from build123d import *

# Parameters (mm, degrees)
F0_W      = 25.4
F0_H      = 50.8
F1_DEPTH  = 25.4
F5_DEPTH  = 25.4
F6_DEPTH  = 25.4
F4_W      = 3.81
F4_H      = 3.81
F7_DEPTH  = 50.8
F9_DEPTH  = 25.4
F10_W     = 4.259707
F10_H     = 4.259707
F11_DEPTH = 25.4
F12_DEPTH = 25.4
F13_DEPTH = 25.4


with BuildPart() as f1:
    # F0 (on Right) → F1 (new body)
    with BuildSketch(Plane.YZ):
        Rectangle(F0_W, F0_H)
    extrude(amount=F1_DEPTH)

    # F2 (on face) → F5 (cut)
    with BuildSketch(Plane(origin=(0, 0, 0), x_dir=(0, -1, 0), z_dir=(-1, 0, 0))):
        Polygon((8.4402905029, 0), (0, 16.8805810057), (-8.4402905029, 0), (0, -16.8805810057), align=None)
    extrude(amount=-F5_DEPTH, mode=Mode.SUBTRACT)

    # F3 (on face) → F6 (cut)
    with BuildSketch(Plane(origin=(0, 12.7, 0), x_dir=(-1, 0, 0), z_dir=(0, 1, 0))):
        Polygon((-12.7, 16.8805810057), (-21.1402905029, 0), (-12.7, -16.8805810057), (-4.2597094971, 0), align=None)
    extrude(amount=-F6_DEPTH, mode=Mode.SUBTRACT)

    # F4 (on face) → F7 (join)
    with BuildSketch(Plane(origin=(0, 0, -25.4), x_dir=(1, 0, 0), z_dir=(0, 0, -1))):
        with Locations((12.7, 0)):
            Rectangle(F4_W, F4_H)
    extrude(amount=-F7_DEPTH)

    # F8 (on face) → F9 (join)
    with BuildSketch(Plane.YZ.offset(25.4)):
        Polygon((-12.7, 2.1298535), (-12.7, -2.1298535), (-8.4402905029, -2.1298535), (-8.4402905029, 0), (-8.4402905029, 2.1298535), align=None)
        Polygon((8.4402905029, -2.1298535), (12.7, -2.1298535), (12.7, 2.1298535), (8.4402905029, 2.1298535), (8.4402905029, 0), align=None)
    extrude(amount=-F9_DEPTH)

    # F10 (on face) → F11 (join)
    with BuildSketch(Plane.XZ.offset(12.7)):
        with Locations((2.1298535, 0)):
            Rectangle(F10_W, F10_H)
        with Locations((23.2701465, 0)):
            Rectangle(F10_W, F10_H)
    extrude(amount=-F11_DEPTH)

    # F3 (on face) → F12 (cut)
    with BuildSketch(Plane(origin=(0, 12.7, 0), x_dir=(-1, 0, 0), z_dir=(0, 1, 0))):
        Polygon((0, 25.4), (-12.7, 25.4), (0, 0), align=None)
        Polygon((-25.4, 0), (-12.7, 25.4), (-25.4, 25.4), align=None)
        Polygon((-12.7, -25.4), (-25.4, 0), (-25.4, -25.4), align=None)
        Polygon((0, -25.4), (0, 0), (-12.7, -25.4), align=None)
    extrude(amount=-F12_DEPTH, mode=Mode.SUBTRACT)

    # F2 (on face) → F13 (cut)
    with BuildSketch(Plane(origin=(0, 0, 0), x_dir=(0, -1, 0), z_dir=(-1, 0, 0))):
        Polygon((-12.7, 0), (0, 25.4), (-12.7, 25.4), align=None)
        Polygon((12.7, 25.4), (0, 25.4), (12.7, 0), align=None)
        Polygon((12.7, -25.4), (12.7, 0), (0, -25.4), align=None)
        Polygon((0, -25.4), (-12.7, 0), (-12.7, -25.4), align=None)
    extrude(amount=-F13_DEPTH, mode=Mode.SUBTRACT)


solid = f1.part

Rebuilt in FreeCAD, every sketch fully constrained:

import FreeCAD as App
import Part
import Sketcher

V = App.Vector
Q = App.Units.Quantity

doc = App.newDocument("Part")
params = doc.addObject("Spreadsheet::Sheet", "Params")
for row, (alias, value) in enumerate([
    ("sketch1_width", "1 in"),
    ("sketch1_height", "2 in"),
    ("pad1_length", "1 in"),
    ("pocket1_length", "1 in"),
    ("pocket2_length", "1 in"),
    ("sketch4_width", "0.15 in"),
    ("pad2_length", "2 in"),
    ("pad3_length", "1 in"),
    ("pad4_length", "1 in"),
    ("sketch7_height", "1 in"),
    ("sketch7_width", "0.5 in"),
    ("pocket3_length", "1 in"),
    ("sketch8_height", "1 in"),
    ("sketch8_width", "0.5 in"),
    ("pocket4_length", "1 in"),
], start=1):
    params.set(f"A{row}", alias)
    params.set(f"B{row}", "=" + value)
    params.setAlias(f"B{row}", alias)

body = doc.addObject("PartDesign::Body", "Body")

# Sketch on YZ plane
sketch1 = body.newObject("Sketcher::SketchObject", "Sketch")
sketch1.AttachmentSupport = (doc.getObject("YZ_Plane"), [""])
sketch1.MapMode = "FlatFace"
sketch1.addGeometry(Part.LineSegment(V(-13, 25, 0), V(-13, -25, 0)), False)
sketch1.addGeometry(Part.LineSegment(V(-13, -25, 0), V(13, -25, 0)), False)
sketch1.addGeometry(Part.LineSegment(V(13, -25, 0), V(13, 25, 0)), False)
sketch1.addGeometry(Part.LineSegment(V(13, 25, 0), V(-13, 25, 0)), False)
sketch1.addConstraint(Sketcher.Constraint("Coincident", 0, 2, 1, 1))
sketch1.addConstraint(Sketcher.Constraint("Coincident", 1, 2, 2, 1))
sketch1.addConstraint(Sketcher.Constraint("Coincident", 2, 2, 3, 1))
sketch1.addConstraint(Sketcher.Constraint("Coincident", 3, 2, 0, 1))
sketch1.addConstraint(Sketcher.Constraint("Vertical", 0))
sketch1.addConstraint(Sketcher.Constraint("Horizontal", 1))
sketch1.addConstraint(Sketcher.Constraint("Vertical", 2))
sketch1.addConstraint(Sketcher.Constraint("Horizontal", 3))
sketch1.addConstraint(Sketcher.Constraint("Symmetric", 0, 2, 2, 2, -1, 1))
sketch1.addConstraint(Sketcher.Constraint("DistanceX", 1, 1, 1, 2, Q("1 in")))
sketch1.addConstraint(Sketcher.Constraint("DistanceY", 0, 2, 0, 1, Q("2 in")))
sketch1.setExpression("Constraints[9]", "Params.sketch1_width")
sketch1.setExpression("Constraints[10]", "Params.sketch1_height")
pad1 = body.newObject("PartDesign::Pad", "Pad")
pad1.Profile = sketch1
pad1.setExpression("Length", "Params.pad1_length")

# Sketch on YZ plane
sketch2 = body.newObject("Sketcher::SketchObject", "Sketch001")
sketch2.AttachmentSupport = (doc.getObject("YZ_Plane"), [""])
sketch2.MapMode = "FlatFace"
sketch2.addGeometry(Part.LineSegment(V(-8, 0, 0), V(0, 17, 0)), False)
sketch2.addGeometry(Part.LineSegment(V(0, 17, 0), V(8, 0, 0)), False)
sketch2.addGeometry(Part.LineSegment(V(8, 0, 0), V(0, -17, 0)), False)
sketch2.addGeometry(Part.LineSegment(V(0, -17, 0), V(-8, 0, 0)), False)
sketch2.addConstraint(Sketcher.Constraint("Coincident", 0, 2, 1, 1))
sketch2.addConstraint(Sketcher.Constraint("Coincident", 1, 2, 2, 1))
sketch2.addConstraint(Sketcher.Constraint("Coincident", 2, 2, 3, 1))
sketch2.addConstraint(Sketcher.Constraint("Coincident", 3, 2, 0, 1))
sketch2.addConstraint(Sketcher.Constraint("Symmetric", 0, 2, 2, 2, -1, 1))
sketch2.addConstraint(Sketcher.Constraint("Symmetric", 1, 2, 3, 2, -1, 1))
sketch2.addConstraint(Sketcher.Constraint("PointOnObject", 0, 2, -2))
sketch2.addConstraint(Sketcher.Constraint("PointOnObject", 1, 2, -1))
sketch2.addConstraint(Sketcher.Constraint("DistanceY", -1, 1, 0, 2, Q("16.880581 mm")))
sketch2.addConstraint(Sketcher.Constraint("DistanceX", -1, 1, 1, 2, Q("8.440291 mm")))
pocket1 = body.newObject("PartDesign::Pocket", "Pocket")
pocket1.Profile = sketch2
pocket1.setExpression("Length", "Params.pocket1_length")
pocket1.Reversed = True

# Sketch on XZ plane
sketch3 = body.newObject("Sketcher::SketchObject", "Sketch002")
sketch3.AttachmentSupport = (doc.getObject("XZ_Plane"), [""])
sketch3.MapMode = "FlatFace"
sketch3.AttachmentOffset = App.Placement(V(0, 0, -0.5 * 25.4), App.Rotation())
sketch3.addGeometry(Part.LineSegment(V(13, 17, 0), V(21, 0, 0)), False)
sketch3.addGeometry(Part.LineSegment(V(21, 0, 0), V(13, -17, 0)), False)
sketch3.addGeometry(Part.LineSegment(V(13, -17, 0), V(4, 0, 0)), False)
sketch3.addGeometry(Part.LineSegment(V(4, 0, 0), V(13, 17, 0)), False)
sketch3.addConstraint(Sketcher.Constraint("Coincident", 0, 2, 1, 1))
sketch3.addConstraint(Sketcher.Constraint("Coincident", 1, 2, 2, 1))
sketch3.addConstraint(Sketcher.Constraint("Coincident", 2, 2, 3, 1))
sketch3.addConstraint(Sketcher.Constraint("Coincident", 3, 2, 0, 1))
sketch3.addConstraint(Sketcher.Constraint("Symmetric", 1, 2, 3, 2, -1))
sketch3.addConstraint(Sketcher.Constraint("PointOnObject", 0, 2, -1))
sketch3.addConstraint(Sketcher.Constraint("PointOnObject", 2, 2, -1))
sketch3.addConstraint(Sketcher.Constraint("Parallel", 0, 2))
sketch3.addConstraint(Sketcher.Constraint("DistanceX", -1, 1, 1, 2, Q("0.5 in")))
sketch3.addConstraint(Sketcher.Constraint("DistanceX", -1, 1, 0, 2, Q("21.140291 mm")))
sketch3.addConstraint(Sketcher.Constraint("DistanceY", 1, 2, -1, 1, Q("16.880581 mm")))
pocket2 = body.newObject("PartDesign::Pocket", "Pocket001")
pocket2.Profile = sketch3
pocket2.setExpression("Length", "Params.pocket2_length")
pocket2.Reversed = True

# Sketch on XY plane
sketch4 = body.newObject("Sketcher::SketchObject", "Sketch003")
sketch4.AttachmentSupport = (doc.getObject("XY_Plane"), [""])
sketch4.MapMode = "FlatFace"
sketch4.AttachmentOffset = App.Placement(V(0, 0, -1 * 25.4), App.Rotation())
sketch4.addGeometry(Part.LineSegment(V(10.8, -1.9, 0), V(10.8, 1.9, 0)), False)
sketch4.addGeometry(Part.LineSegment(V(10.8, 1.9, 0), V(14.6, 1.9, 0)), False)
sketch4.addGeometry(Part.LineSegment(V(14.6, 1.9, 0), V(14.6, -1.9, 0)), False)
sketch4.addGeometry(Part.LineSegment(V(14.6, -1.9, 0), V(10.8, -1.9, 0)), False)
sketch4.addConstraint(Sketcher.Constraint("Coincident", 0, 2, 1, 1))
sketch4.addConstraint(Sketcher.Constraint("Coincident", 1, 2, 2, 1))
sketch4.addConstraint(Sketcher.Constraint("Coincident", 2, 2, 3, 1))
sketch4.addConstraint(Sketcher.Constraint("Coincident", 3, 2, 0, 1))
sketch4.addConstraint(Sketcher.Constraint("Vertical", 0))
sketch4.addConstraint(Sketcher.Constraint("Horizontal", 1))
sketch4.addConstraint(Sketcher.Constraint("Vertical", 2))
sketch4.addConstraint(Sketcher.Constraint("Horizontal", 3))
sketch4.addConstraint(Sketcher.Constraint("Equal", 3, 0))
sketch4.addConstraint(Sketcher.Constraint("DistanceX", 1, 1, 1, 2, Q("0.15 in")))
sketch4.addConstraint(Sketcher.Constraint("DistanceX", -1, 1, 0, 2, Q("0.425 in")))
sketch4.addConstraint(Sketcher.Constraint("DistanceY", -1, 1, 0, 2, Q("0.075 in")))
sketch4.setExpression("Constraints[9]", "Params.sketch4_width")
pad2 = body.newObject("PartDesign::Pad", "Pad001")
pad2.Profile = sketch4
pad2.setExpression("Length", "Params.pad2_length")

# Sketch on YZ plane
sketch5 = body.newObject("Sketcher::SketchObject", "Sketch004")
sketch5.AttachmentSupport = (doc.getObject("YZ_Plane"), [""])
sketch5.MapMode = "FlatFace"
sketch5.AttachmentOffset = App.Placement(V(0, 0, 1 * 25.4), App.Rotation())
sketch5.addGeometry(Part.LineSegment(V(-12.7, 2.1, 0), V(-12.7, -2.1, 0)), False)
sketch5.addGeometry(Part.LineSegment(V(-12.7, -2.1, 0), V(-8.4, -2.1, 0)), False)
sketch5.addGeometry(Part.LineSegment(V(-8.4, -2.1, 0), V(-8.4, 2.1, 0)), False)
sketch5.addGeometry(Part.LineSegment(V(-8.4, 2.1, 0), V(-12.7, 2.1, 0)), False)
sketch5.addGeometry(Part.LineSegment(V(8.4, -2.1, 0), V(12.7, -2.1, 0)), False)
sketch5.addGeometry(Part.LineSegment(V(12.7, -2.1, 0), V(12.7, 2.1, 0)), False)
sketch5.addGeometry(Part.LineSegment(V(12.7, 2.1, 0), V(8.4, 2.1, 0)), False)
sketch5.addGeometry(Part.LineSegment(V(8.4, 2.1, 0), V(8.4, -2.1, 0)), False)
sketch5.addConstraint(Sketcher.Constraint("Coincident", 0, 2, 1, 1))
sketch5.addConstraint(Sketcher.Constraint("Coincident", 1, 2, 2, 1))
sketch5.addConstraint(Sketcher.Constraint("Coincident", 2, 2, 3, 1))
sketch5.addConstraint(Sketcher.Constraint("Coincident", 3, 2, 0, 1))
sketch5.addConstraint(Sketcher.Constraint("Coincident", 4, 2, 5, 1))
sketch5.addConstraint(Sketcher.Constraint("Coincident", 5, 2, 6, 1))
sketch5.addConstraint(Sketcher.Constraint("Coincident", 6, 2, 7, 1))
sketch5.addConstraint(Sketcher.Constraint("Coincident", 7, 2, 4, 1))
sketch5.addConstraint(Sketcher.Constraint("Vertical", 0))
sketch5.addConstraint(Sketcher.Constraint("Horizontal", 1))
sketch5.addConstraint(Sketcher.Constraint("Vertical", 2))
sketch5.addConstraint(Sketcher.Constraint("Horizontal", 3))
sketch5.addConstraint(Sketcher.Constraint("Horizontal", 4))
sketch5.addConstraint(Sketcher.Constraint("Vertical", 5))
sketch5.addConstraint(Sketcher.Constraint("Horizontal", 6))
sketch5.addConstraint(Sketcher.Constraint("Vertical", 7))
sketch5.addConstraint(Sketcher.Constraint("Symmetric", 3, 2, 4, 2, -1, 1))
sketch5.addConstraint(Sketcher.Constraint("Symmetric", 1, 2, 6, 2, -1, 1))
sketch5.addConstraint(Sketcher.Constraint("Horizontal", 1, 2, 4, 2))
sketch5.addConstraint(Sketcher.Constraint("DistanceX", 0, 2, 4, 2, Q("1 in")))
sketch5.addConstraint(Sketcher.Constraint("DistanceX", 1, 1, 1, 2, Q("4.259709 mm")))
sketch5.addConstraint(Sketcher.Constraint("DistanceY", 0, 2, 0, 1, Q("4.259707 mm")))
pad3 = body.newObject("PartDesign::Pad", "Pad002")
pad3.Profile = sketch5
pad3.setExpression("Length", "Params.pad3_length")
pad3.Reversed = True

# Sketch on XZ plane
sketch6 = body.newObject("Sketcher::SketchObject", "Sketch005")
sketch6.AttachmentSupport = (doc.getObject("XZ_Plane"), [""])
sketch6.MapMode = "FlatFace"
sketch6.AttachmentOffset = App.Placement(V(0, 0, 0.5 * 25.4), App.Rotation())
sketch6.addGeometry(Part.LineSegment(V(0, 2.1, 0), V(0, -2.1, 0)), False)
sketch6.addGeometry(Part.LineSegment(V(0, -2.1, 0), V(4.3, -2.1, 0)), False)
sketch6.addGeometry(Part.LineSegment(V(4.3, -2.1, 0), V(4.3, 2.1, 0)), False)
sketch6.addGeometry(Part.LineSegment(V(4.3, 2.1, 0), V(0, 2.1, 0)), False)
sketch6.addGeometry(Part.LineSegment(V(21.1, 2.1, 0), V(21.1, -2.1, 0)), False)
sketch6.addGeometry(Part.LineSegment(V(21.1, -2.1, 0), V(25.4, -2.1, 0)), False)
sketch6.addGeometry(Part.LineSegment(V(25.4, -2.1, 0), V(25.4, 2.1, 0)), False)
sketch6.addGeometry(Part.LineSegment(V(25.4, 2.1, 0), V(21.1, 2.1, 0)), False)
sketch6.addConstraint(Sketcher.Constraint("Coincident", 0, 2, 1, 1))
sketch6.addConstraint(Sketcher.Constraint("Coincident", 1, 2, 2, 1))
sketch6.addConstraint(Sketcher.Constraint("Coincident", 2, 2, 3, 1))
sketch6.addConstraint(Sketcher.Constraint("Coincident", 3, 2, 0, 1))
sketch6.addConstraint(Sketcher.Constraint("Coincident", 4, 2, 5, 1))
sketch6.addConstraint(Sketcher.Constraint("Coincident", 5, 2, 6, 1))
sketch6.addConstraint(Sketcher.Constraint("Coincident", 6, 2, 7, 1))
sketch6.addConstraint(Sketcher.Constraint("Coincident", 7, 2, 4, 1))
sketch6.addConstraint(Sketcher.Constraint("Vertical", 0))
sketch6.addConstraint(Sketcher.Constraint("Horizontal", 1))
sketch6.addConstraint(Sketcher.Constraint("Vertical", 2))
sketch6.addConstraint(Sketcher.Constraint("Horizontal", 3))
sketch6.addConstraint(Sketcher.Constraint("Vertical", 4))
sketch6.addConstraint(Sketcher.Constraint("Horizontal", 5))
sketch6.addConstraint(Sketcher.Constraint("Vertical", 6))
sketch6.addConstraint(Sketcher.Constraint("Horizontal", 7))
sketch6.addConstraint(Sketcher.Constraint("Symmetric", 0, 2, 3, 2, -1, 1))
sketch6.addConstraint(Sketcher.Constraint("Horizontal", 1, 2, 4, 2))
sketch6.addConstraint(Sketcher.Constraint("Horizontal", 3, 2, 6, 2))
sketch6.addConstraint(Sketcher.Constraint("Equal", 3, 5))
sketch6.addConstraint(Sketcher.Constraint("Equal", 7, 0))
sketch6.addConstraint(Sketcher.Constraint("DistanceX", -1, 1, 5, 2, Q("1 in")))
sketch6.addConstraint(Sketcher.Constraint("DistanceX", 1, 1, 1, 2, Q("4.259707 mm")))
pad4 = body.newObject("PartDesign::Pad", "Pad003")
pad4.Profile = sketch6
pad4.setExpression("Length", "Params.pad4_length")
pad4.Reversed = True

# Sketch on XZ plane
sketch7 = body.newObject("Sketcher::SketchObject", "Sketch006")
sketch7.AttachmentSupport = (doc.getObject("XZ_Plane"), [""])
sketch7.MapMode = "FlatFace"
sketch7.AttachmentOffset = App.Placement(V(0, 0, -0.5 * 25.4), App.Rotation())
sketch7.addGeometry(Part.LineSegment(V(0, 25, 0), V(13, 25, 0)), False)
sketch7.addGeometry(Part.LineSegment(V(13, 25, 0), V(0, 0, 0)), False)
sketch7.addGeometry(Part.LineSegment(V(0, 0, 0), V(0, 25, 0)), False)
sketch7.addGeometry(Part.LineSegment(V(25, 0, 0), V(13, 25, 0)), False)
sketch7.addGeometry(Part.LineSegment(V(13, 25, 0), V(25, 25, 0)), False)
sketch7.addGeometry(Part.LineSegment(V(25, 25, 0), V(25, 0, 0)), False)
sketch7.addGeometry(Part.LineSegment(V(13, -25, 0), V(25, 0, 0)), False)
sketch7.addGeometry(Part.LineSegment(V(25, 0, 0), V(25, -25, 0)), False)
sketch7.addGeometry(Part.LineSegment(V(25, -25, 0), V(13, -25, 0)), False)
sketch7.addGeometry(Part.LineSegment(V(0, -25, 0), V(0, 0, 0)), False)
sketch7.addGeometry(Part.LineSegment(V(0, 0, 0), V(13, -25, 0)), False)
sketch7.addGeometry(Part.LineSegment(V(13, -25, 0), V(0, -25, 0)), False)
sketch7.addConstraint(Sketcher.Constraint("Coincident", 0, 2, 1, 1))
sketch7.addConstraint(Sketcher.Constraint("Coincident", 1, 2, 2, 1))
sketch7.addConstraint(Sketcher.Constraint("Coincident", 2, 2, 0, 1))
sketch7.addConstraint(Sketcher.Constraint("Coincident", 3, 2, 4, 1))
sketch7.addConstraint(Sketcher.Constraint("Coincident", 4, 2, 5, 1))
sketch7.addConstraint(Sketcher.Constraint("Coincident", 5, 2, 3, 1))
sketch7.addConstraint(Sketcher.Constraint("Coincident", 6, 2, 7, 1))
sketch7.addConstraint(Sketcher.Constraint("Coincident", 7, 2, 8, 1))
sketch7.addConstraint(Sketcher.Constraint("Coincident", 8, 2, 6, 1))
sketch7.addConstraint(Sketcher.Constraint("Coincident", 9, 2, 10, 1))
sketch7.addConstraint(Sketcher.Constraint("Coincident", 10, 2, 11, 1))
sketch7.addConstraint(Sketcher.Constraint("Coincident", 11, 2, 9, 1))
sketch7.addConstraint(Sketcher.Constraint("Horizontal", 0))
sketch7.addConstraint(Sketcher.Constraint("Vertical", 2))
sketch7.addConstraint(Sketcher.Constraint("Horizontal", 4))
sketch7.addConstraint(Sketcher.Constraint("Vertical", 5))
sketch7.addConstraint(Sketcher.Constraint("Vertical", 7))
sketch7.addConstraint(Sketcher.Constraint("Horizontal", 8))
sketch7.addConstraint(Sketcher.Constraint("Vertical", 9))
sketch7.addConstraint(Sketcher.Constraint("Horizontal", 11))
sketch7.addConstraint(Sketcher.Constraint("Coincident", 1, 2, -1, 1))
sketch7.addConstraint(Sketcher.Constraint("Coincident", 9, 2, -1, 1))
sketch7.addConstraint(Sketcher.Constraint("Coincident", 3, 2, 0, 2))
sketch7.addConstraint(Sketcher.Constraint("Coincident", 6, 2, 5, 2))
sketch7.addConstraint(Sketcher.Constraint("Coincident", 10, 2, 8, 2))
sketch7.addConstraint(Sketcher.Constraint("Symmetric", 0, 2, 8, 2, -1))
sketch7.addConstraint(Sketcher.Constraint("PointOnObject", 5, 2, -1))
sketch7.addConstraint(Sketcher.Constraint("Parallel", 1, 6))
sketch7.addConstraint(Sketcher.Constraint("DistanceY", 2, 1, 2, 2, Q("1 in")))
sketch7.addConstraint(Sketcher.Constraint("DistanceX", 0, 1, 0, 2, Q("0.5 in")))
sketch7.setExpression("Constraints[28]", "Params.sketch7_height")
sketch7.setExpression("Constraints[29]", "Params.sketch7_width")
pocket3 = body.newObject("PartDesign::Pocket", "Pocket002")
pocket3.Profile = sketch7
pocket3.setExpression("Length", "Params.pocket3_length")
pocket3.Reversed = True

# Sketch on YZ plane
sketch8 = body.newObject("Sketcher::SketchObject", "Sketch007")
sketch8.AttachmentSupport = (doc.getObject("YZ_Plane"), [""])
sketch8.MapMode = "FlatFace"
sketch8.addGeometry(Part.LineSegment(V(13, 0, 0), V(0, 25, 0)), False)
sketch8.addGeometry(Part.LineSegment(V(0, 25, 0), V(13, 25, 0)), False)
sketch8.addGeometry(Part.LineSegment(V(13, 25, 0), V(13, 0, 0)), False)
sketch8.addGeometry(Part.LineSegment(V(-13, 25, 0), V(0, 25, 0)), False)
sketch8.addGeometry(Part.LineSegment(V(0, 25, 0), V(-13, 0, 0)), False)
sketch8.addGeometry(Part.LineSegment(V(-13, 0, 0), V(-13, 25, 0)), False)
sketch8.addGeometry(Part.LineSegment(V(-13, -25, 0), V(-13, 0, 0)), False)
sketch8.addGeometry(Part.LineSegment(V(-13, 0, 0), V(0, -25, 0)), False)
sketch8.addGeometry(Part.LineSegment(V(0, -25, 0), V(-13, -25, 0)), False)
sketch8.addGeometry(Part.LineSegment(V(0, -25, 0), V(13, 0, 0)), False)
sketch8.addGeometry(Part.LineSegment(V(13, 0, 0), V(13, -25, 0)), False)
sketch8.addGeometry(Part.LineSegment(V(13, -25, 0), V(0, -25, 0)), False)
sketch8.addConstraint(Sketcher.Constraint("Coincident", 0, 2, 1, 1))
sketch8.addConstraint(Sketcher.Constraint("Coincident", 1, 2, 2, 1))
sketch8.addConstraint(Sketcher.Constraint("Coincident", 2, 2, 0, 1))
sketch8.addConstraint(Sketcher.Constraint("Coincident", 3, 2, 4, 1))
sketch8.addConstraint(Sketcher.Constraint("Coincident", 4, 2, 5, 1))
sketch8.addConstraint(Sketcher.Constraint("Coincident", 5, 2, 3, 1))
sketch8.addConstraint(Sketcher.Constraint("Coincident", 6, 2, 7, 1))
sketch8.addConstraint(Sketcher.Constraint("Coincident", 7, 2, 8, 1))
sketch8.addConstraint(Sketcher.Constraint("Coincident", 8, 2, 6, 1))
sketch8.addConstraint(Sketcher.Constraint("Coincident", 9, 2, 10, 1))
sketch8.addConstraint(Sketcher.Constraint("Coincident", 10, 2, 11, 1))
sketch8.addConstraint(Sketcher.Constraint("Coincident", 11, 2, 9, 1))
sketch8.addConstraint(Sketcher.Constraint("Horizontal", 1))
sketch8.addConstraint(Sketcher.Constraint("Vertical", 2))
sketch8.addConstraint(Sketcher.Constraint("Horizontal", 3))
sketch8.addConstraint(Sketcher.Constraint("Vertical", 5))
sketch8.addConstraint(Sketcher.Constraint("Vertical", 6))
sketch8.addConstraint(Sketcher.Constraint("Horizontal", 8))
sketch8.addConstraint(Sketcher.Constraint("Vertical", 10))
sketch8.addConstraint(Sketcher.Constraint("Horizontal", 11))
sketch8.addConstraint(Sketcher.Constraint("Coincident", 3, 2, 0, 2))
sketch8.addConstraint(Sketcher.Constraint("Coincident", 6, 2, 4, 2))
sketch8.addConstraint(Sketcher.Constraint("Coincident", 9, 2, 2, 2))
sketch8.addConstraint(Sketcher.Constraint("Coincident", 11, 2, 7, 2))
sketch8.addConstraint(Sketcher.Constraint("Symmetric", 2, 2, 4, 2, -1, 1))
sketch8.addConstraint(Sketcher.Constraint("Symmetric", 0, 2, 7, 2, -1, 1))
sketch8.addConstraint(Sketcher.Constraint("PointOnObject", 0, 2, -2))
sketch8.addConstraint(Sketcher.Constraint("PointOnObject", 2, 2, -1))
sketch8.addConstraint(Sketcher.Constraint("DistanceY", 2, 2, 2, 1, Q("1 in")))
sketch8.addConstraint(Sketcher.Constraint("DistanceX", 1, 1, 1, 2, Q("0.5 in")))
sketch8.setExpression("Constraints[28]", "Params.sketch8_height")
sketch8.setExpression("Constraints[29]", "Params.sketch8_width")
pocket4 = body.newObject("PartDesign::Pocket", "Pocket003")
pocket4.Profile = sketch8
pocket4.setExpression("Length", "Params.pocket4_length")
pocket4.Reversed = True

doc.recompute()
